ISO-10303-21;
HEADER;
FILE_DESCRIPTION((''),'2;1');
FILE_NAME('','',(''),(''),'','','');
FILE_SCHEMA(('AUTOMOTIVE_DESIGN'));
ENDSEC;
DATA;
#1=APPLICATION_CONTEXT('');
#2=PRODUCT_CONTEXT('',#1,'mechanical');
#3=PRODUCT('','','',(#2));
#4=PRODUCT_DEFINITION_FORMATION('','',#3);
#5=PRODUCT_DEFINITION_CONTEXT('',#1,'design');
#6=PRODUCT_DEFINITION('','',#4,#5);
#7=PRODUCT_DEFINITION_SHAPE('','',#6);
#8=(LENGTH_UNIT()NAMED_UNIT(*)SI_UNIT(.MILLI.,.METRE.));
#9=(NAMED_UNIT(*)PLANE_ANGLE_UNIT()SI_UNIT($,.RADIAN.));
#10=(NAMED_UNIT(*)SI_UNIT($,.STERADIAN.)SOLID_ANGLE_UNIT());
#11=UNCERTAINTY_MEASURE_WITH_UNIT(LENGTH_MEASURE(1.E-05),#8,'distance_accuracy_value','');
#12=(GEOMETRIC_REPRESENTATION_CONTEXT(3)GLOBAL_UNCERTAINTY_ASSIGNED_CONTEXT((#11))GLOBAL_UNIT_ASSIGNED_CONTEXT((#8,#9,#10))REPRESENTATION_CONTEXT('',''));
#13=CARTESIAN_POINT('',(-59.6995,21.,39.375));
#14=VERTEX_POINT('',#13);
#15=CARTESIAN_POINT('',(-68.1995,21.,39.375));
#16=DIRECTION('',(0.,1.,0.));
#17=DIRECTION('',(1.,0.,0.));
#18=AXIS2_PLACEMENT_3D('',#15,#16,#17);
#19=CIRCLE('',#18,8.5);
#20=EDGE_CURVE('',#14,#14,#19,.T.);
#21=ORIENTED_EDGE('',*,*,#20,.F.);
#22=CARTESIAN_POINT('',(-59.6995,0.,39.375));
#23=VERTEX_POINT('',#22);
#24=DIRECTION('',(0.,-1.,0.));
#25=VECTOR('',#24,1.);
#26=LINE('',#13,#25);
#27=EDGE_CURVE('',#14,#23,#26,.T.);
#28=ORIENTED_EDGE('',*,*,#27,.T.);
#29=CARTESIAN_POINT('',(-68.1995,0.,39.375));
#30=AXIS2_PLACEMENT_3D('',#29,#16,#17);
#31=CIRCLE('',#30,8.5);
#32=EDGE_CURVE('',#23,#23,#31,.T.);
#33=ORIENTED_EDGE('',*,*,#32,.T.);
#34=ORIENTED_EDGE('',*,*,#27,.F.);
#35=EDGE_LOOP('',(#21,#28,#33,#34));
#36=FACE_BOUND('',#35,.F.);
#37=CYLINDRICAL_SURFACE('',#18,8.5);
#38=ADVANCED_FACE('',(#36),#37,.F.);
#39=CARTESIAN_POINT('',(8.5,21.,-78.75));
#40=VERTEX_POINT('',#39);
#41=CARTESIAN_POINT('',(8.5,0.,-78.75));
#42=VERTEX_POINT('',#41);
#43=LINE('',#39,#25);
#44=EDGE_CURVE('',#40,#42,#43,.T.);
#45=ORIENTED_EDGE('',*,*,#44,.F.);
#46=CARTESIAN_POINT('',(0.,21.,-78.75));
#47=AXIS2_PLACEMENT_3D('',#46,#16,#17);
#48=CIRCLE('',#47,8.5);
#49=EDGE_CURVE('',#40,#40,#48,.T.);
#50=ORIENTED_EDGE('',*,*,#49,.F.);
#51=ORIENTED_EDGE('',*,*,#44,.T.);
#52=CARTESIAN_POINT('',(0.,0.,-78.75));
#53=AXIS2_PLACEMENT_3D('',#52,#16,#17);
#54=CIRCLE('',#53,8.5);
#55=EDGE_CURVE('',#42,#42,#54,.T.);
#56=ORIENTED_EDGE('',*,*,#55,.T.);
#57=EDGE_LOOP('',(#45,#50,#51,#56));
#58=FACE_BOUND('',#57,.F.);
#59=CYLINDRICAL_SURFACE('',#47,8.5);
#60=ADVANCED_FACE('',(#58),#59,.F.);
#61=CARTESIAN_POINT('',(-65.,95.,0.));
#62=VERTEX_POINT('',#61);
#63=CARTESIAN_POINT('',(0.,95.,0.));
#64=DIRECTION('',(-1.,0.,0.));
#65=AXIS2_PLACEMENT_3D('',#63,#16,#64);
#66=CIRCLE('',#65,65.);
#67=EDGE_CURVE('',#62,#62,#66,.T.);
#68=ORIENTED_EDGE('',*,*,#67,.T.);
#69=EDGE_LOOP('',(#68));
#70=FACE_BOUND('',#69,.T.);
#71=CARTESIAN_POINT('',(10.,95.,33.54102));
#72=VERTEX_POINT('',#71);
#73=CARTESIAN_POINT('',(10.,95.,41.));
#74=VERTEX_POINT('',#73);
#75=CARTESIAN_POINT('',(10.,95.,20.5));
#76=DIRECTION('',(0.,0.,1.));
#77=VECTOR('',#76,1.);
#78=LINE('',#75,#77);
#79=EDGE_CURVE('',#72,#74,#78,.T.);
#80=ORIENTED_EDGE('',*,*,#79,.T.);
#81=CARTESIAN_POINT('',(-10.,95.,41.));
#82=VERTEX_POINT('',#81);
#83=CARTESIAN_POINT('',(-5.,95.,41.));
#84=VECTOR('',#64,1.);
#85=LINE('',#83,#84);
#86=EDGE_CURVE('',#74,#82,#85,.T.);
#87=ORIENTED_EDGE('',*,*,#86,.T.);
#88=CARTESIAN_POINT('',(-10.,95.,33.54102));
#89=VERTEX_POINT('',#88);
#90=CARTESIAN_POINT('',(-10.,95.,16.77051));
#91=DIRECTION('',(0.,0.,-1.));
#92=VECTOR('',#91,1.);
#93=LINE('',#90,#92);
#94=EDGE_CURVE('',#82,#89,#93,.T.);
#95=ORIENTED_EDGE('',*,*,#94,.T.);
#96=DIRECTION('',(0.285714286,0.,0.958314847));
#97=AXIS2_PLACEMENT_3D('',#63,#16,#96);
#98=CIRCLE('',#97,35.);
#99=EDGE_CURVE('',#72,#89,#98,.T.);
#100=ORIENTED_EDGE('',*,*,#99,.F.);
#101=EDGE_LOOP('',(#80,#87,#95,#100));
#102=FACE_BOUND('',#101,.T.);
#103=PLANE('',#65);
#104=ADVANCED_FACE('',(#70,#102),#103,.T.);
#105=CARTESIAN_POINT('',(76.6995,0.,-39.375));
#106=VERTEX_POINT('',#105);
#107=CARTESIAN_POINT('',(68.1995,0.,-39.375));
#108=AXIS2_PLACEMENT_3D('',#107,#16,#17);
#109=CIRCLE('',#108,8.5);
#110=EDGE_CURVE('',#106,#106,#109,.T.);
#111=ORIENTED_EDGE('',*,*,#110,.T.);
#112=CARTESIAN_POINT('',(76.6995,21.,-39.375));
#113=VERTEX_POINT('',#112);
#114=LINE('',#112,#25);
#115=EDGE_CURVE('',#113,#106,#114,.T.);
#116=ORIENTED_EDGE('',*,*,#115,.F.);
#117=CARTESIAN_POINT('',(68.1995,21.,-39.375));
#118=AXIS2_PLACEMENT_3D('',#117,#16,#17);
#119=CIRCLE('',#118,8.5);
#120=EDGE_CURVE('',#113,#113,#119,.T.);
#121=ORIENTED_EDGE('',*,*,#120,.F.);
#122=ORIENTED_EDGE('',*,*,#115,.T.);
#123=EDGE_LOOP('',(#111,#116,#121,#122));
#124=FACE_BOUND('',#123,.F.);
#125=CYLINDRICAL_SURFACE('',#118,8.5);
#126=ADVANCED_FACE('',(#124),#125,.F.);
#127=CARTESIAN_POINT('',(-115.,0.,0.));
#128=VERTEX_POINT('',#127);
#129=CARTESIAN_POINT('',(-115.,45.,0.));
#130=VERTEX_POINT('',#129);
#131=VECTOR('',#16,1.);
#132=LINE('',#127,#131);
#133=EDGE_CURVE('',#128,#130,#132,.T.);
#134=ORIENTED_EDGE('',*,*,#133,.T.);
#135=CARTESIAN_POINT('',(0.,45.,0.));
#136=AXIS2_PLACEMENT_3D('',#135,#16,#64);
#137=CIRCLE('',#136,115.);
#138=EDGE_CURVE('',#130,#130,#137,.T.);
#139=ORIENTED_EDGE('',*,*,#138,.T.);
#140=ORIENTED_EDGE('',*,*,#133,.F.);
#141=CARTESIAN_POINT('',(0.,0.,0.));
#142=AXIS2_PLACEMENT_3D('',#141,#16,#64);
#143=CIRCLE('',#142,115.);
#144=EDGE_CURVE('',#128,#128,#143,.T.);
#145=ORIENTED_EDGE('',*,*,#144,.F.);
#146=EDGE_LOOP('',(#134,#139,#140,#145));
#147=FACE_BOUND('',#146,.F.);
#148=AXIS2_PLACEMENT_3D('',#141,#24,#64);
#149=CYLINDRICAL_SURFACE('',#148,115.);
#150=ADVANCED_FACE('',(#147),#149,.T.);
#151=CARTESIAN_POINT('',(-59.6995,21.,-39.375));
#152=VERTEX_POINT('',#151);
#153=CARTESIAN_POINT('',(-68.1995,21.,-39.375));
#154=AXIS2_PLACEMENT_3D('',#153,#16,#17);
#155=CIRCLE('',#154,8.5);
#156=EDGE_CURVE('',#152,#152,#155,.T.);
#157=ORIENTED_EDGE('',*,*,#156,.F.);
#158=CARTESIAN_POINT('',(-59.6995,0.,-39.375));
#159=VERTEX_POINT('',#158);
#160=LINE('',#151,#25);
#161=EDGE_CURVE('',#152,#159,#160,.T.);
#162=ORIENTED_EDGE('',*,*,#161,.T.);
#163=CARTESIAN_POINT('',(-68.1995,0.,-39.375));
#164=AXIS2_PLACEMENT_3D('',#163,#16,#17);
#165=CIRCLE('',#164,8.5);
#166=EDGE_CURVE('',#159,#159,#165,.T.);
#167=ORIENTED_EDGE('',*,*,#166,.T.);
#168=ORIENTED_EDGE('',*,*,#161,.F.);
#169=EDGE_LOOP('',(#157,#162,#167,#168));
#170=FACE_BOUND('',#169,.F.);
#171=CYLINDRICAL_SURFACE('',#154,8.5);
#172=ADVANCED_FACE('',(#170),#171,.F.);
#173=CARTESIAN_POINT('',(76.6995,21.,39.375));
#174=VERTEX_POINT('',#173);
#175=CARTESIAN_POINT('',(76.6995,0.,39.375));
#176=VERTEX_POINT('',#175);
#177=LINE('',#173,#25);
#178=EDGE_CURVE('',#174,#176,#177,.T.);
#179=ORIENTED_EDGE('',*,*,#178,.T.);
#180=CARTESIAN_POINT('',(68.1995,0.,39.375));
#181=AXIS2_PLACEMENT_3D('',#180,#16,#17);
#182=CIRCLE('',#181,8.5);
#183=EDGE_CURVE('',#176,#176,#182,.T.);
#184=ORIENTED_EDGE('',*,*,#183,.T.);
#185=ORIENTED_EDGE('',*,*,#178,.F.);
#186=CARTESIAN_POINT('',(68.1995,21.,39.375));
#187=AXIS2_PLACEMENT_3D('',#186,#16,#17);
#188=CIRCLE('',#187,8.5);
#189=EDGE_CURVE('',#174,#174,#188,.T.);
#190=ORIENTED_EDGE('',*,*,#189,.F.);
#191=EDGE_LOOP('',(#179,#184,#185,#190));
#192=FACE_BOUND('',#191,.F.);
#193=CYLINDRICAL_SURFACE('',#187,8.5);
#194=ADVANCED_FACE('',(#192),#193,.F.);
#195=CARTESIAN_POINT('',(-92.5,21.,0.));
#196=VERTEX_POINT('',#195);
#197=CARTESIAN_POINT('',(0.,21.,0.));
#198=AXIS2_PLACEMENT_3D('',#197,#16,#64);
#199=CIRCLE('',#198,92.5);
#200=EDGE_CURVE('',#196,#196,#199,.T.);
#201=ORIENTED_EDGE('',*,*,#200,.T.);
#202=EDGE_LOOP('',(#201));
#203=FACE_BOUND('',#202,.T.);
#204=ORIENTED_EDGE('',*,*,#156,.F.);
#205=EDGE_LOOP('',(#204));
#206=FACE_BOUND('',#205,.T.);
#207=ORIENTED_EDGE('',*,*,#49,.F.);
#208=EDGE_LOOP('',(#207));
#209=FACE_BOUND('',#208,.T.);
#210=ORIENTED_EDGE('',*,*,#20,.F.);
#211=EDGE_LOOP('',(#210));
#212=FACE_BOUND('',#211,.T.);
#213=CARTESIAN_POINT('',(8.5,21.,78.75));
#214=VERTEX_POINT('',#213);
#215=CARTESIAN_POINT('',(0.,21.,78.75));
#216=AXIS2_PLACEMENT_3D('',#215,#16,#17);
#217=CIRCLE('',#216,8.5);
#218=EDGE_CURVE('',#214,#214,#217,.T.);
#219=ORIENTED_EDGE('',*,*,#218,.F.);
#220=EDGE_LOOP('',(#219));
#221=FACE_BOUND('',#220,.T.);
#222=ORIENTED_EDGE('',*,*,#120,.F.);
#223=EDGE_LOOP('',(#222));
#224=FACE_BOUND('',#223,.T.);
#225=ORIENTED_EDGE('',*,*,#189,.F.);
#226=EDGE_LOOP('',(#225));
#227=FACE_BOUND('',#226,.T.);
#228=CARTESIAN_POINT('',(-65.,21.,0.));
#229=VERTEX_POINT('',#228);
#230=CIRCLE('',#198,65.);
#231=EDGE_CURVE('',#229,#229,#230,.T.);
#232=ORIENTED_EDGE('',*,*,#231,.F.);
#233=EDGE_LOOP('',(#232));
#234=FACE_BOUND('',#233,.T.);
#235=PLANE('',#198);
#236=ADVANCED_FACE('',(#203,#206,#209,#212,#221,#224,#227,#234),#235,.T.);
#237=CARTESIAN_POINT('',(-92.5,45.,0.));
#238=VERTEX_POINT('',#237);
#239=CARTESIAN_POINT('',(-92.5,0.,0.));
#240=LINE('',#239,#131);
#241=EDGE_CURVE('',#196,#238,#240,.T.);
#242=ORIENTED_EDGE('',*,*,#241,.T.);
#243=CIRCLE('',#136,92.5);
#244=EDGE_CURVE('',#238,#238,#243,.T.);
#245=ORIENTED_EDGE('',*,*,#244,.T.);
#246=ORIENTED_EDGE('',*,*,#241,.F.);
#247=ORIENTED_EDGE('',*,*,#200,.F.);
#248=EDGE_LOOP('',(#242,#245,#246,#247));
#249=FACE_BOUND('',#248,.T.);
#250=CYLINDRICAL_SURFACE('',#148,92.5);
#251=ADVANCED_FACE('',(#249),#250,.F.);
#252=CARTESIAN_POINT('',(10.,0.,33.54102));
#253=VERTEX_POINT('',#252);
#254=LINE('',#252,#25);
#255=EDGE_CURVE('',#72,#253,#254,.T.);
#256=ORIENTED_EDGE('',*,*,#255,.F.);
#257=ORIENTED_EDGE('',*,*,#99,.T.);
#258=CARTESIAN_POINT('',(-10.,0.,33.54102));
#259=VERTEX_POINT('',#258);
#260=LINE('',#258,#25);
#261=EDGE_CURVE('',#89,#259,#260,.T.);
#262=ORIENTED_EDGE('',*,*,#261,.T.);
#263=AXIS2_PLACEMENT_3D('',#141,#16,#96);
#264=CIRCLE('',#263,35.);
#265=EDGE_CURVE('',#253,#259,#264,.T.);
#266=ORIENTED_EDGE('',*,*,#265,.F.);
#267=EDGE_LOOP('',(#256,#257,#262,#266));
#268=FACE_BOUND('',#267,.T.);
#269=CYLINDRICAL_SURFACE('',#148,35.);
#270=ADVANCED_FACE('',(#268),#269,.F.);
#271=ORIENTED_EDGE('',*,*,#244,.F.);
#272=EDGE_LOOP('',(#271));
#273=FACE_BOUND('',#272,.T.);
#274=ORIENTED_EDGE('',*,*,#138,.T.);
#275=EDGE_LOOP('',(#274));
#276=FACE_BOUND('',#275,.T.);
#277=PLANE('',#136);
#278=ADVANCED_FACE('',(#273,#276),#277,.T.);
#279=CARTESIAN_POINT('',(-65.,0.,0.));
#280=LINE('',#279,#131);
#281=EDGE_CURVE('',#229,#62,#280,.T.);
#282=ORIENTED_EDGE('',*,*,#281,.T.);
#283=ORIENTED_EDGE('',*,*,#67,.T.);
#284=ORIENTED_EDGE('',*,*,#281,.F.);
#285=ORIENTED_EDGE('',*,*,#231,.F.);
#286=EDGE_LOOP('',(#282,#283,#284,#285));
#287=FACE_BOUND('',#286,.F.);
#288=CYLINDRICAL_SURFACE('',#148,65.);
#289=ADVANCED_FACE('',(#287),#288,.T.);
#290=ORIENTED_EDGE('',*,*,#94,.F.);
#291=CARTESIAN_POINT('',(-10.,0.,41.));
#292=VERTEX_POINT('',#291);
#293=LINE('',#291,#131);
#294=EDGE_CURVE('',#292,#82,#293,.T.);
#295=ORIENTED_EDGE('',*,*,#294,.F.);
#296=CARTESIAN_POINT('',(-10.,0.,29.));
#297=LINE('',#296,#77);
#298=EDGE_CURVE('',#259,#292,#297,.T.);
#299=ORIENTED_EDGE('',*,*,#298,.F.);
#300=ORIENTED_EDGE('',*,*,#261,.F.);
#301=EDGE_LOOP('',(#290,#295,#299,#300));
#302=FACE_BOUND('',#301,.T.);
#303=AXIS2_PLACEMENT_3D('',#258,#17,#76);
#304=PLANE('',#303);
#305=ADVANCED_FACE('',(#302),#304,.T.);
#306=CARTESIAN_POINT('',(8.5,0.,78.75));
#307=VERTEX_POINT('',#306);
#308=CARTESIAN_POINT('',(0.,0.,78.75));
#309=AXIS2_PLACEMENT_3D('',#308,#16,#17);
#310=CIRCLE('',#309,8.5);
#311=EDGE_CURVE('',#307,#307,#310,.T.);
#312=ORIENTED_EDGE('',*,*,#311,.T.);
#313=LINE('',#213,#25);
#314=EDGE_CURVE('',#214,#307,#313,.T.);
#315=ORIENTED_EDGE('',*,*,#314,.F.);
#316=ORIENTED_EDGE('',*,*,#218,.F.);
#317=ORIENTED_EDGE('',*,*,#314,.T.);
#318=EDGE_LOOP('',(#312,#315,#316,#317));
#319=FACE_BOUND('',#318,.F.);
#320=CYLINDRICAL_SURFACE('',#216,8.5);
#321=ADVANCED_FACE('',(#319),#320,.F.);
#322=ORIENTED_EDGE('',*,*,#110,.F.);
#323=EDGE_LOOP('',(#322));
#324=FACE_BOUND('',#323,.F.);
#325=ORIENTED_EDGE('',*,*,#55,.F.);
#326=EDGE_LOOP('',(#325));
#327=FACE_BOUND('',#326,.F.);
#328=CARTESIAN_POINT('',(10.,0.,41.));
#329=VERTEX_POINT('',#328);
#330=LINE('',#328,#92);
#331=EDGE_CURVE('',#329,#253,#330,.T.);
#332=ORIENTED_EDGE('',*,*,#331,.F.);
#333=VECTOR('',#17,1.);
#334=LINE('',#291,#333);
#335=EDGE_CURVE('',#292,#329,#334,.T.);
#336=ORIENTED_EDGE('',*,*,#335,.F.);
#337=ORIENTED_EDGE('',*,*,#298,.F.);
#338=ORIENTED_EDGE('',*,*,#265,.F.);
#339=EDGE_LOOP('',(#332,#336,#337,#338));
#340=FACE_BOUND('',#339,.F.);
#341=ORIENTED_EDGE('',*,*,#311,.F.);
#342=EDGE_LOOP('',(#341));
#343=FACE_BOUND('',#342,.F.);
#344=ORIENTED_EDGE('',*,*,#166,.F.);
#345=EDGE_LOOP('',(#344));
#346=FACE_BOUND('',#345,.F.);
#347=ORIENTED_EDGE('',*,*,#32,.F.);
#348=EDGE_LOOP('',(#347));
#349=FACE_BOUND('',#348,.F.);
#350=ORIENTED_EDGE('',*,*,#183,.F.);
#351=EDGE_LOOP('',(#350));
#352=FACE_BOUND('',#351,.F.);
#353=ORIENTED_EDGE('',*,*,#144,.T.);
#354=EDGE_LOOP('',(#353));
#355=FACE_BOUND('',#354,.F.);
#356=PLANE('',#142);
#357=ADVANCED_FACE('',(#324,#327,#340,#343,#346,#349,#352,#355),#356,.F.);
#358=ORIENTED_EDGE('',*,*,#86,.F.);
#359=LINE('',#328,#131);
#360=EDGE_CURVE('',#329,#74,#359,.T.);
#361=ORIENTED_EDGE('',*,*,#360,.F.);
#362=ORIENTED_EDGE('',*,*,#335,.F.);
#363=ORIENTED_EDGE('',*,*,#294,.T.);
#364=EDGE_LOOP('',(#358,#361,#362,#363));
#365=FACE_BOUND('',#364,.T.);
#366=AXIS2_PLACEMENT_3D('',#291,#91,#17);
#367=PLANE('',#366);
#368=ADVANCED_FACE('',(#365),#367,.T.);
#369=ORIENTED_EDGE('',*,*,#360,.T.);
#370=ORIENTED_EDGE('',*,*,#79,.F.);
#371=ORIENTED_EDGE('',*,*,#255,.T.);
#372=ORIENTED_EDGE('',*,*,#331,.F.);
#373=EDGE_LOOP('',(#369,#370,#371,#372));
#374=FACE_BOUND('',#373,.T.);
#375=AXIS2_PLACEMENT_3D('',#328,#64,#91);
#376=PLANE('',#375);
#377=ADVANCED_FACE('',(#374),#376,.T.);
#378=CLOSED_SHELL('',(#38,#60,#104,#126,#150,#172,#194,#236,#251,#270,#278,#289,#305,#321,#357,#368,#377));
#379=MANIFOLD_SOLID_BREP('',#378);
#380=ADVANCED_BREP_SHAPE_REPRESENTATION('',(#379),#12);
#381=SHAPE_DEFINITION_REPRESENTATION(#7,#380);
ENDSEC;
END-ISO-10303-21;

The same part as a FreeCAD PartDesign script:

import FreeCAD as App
import Part
import Sketcher

V = App.Vector
Q = App.Units.Quantity


def add_polygon(sketch, points):
    """Adds a closed chain of lines whose ends are joined by coincident constraints."""
    first, n = sketch.GeometryCount, len(points)
    for a, b in zip(points, points[1:] + points[:1]):
        sketch.addGeometry(Part.LineSegment(App.Vector(*a, 0), App.Vector(*b, 0)), False)
    for i in range(n):
        sketch.addConstraint(Sketcher.Constraint("Coincident", first + i, 2, first + (i + 1) % n, 1))

doc = App.newDocument("Part")
params = doc.addObject("Spreadsheet::Sheet", "Params")
for row, (alias, value) in enumerate([
    ("sketch1_diameter", "130 mm"),
    ("sketch1_diameter2", "70 mm"),
    ("pad1_length", "95 mm"),
    ("sketch2_diameter", "185 mm"),
    ("sketch2_diameter2", "130 mm"),
    ("pad2_length", "21 mm"),
    ("sketch3_diameter", "230 mm"),
    ("sketch3_diameter2", "185 mm"),
    ("pad3_length", "45 mm"),
    ("sketch4_diameter", "17 mm"),
    ("sketch5_width", "20 mm"),
    ("sketch5_height", "12 mm"),
], start=1):
    params.set(f"A{row}", alias)
    params.set(f"B{row}", "=" + value)
    params.setAlias(f"B{row}", alias)

body = doc.addObject("PartDesign::Body", "Body")

sketch1 = doc.addObject("Sketcher::SketchObject", "Sketch")
body.addObject(sketch1)
sketch1.AttachmentSupport = (doc.XZ_Plane, [""])
sketch1.MapMode = "FlatFace"
sketch1.addGeometry(Part.Circle(V(0, 0, 0), V(0, 0, 1), 65), False)
sketch1.addGeometry(Part.Circle(V(0, 0, 0), V(0, 0, 1), 35), False)
sketch1.addConstraint(Sketcher.Constraint("Coincident", 0, 3, -1, 1))
sketch1.addConstraint(Sketcher.Constraint("Coincident", 1, 3, -1, 1))
sketch1.addConstraint(Sketcher.Constraint("Diameter", 0, Q("130 mm")))
sketch1.addConstraint(Sketcher.Constraint("Diameter", 1, Q("70 mm")))
sketch1.setExpression("Constraints[2]", "Params.sketch1_diameter")
sketch1.setExpression("Constraints[3]", "Params.sketch1_diameter2")
pad1 = doc.addObject("PartDesign::Pad", "Pad")
body.addObject(pad1)
pad1.Profile = sketch1
pad1.setExpression("Length", "Params.pad1_length")
pad1.Reversed = True

sketch2 = doc.addObject("Sketcher::SketchObject", "Sketch001")
body.addObject(sketch2)
sketch2.AttachmentSupport = (doc.XZ_Plane, [""])
sketch2.MapMode = "FlatFace"
sketch2.addGeometry(Part.Circle(V(0, 0, 0), V(0, 0, 1), 92.5), False)
sketch2.addGeometry(Part.Circle(V(0, 0, 0), V(0, 0, 1), 65), False)
sketch2.addConstraint(Sketcher.Constraint("Coincident", 0, 3, -1, 1))
sketch2.addConstraint(Sketcher.Constraint("Coincident", 1, 3, -1, 1))
sketch2.addConstraint(Sketcher.Constraint("Diameter", 0, Q("185 mm")))
sketch2.addConstraint(Sketcher.Constraint("Diameter", 1, Q("130 mm")))
sketch2.setExpression("Constraints[2]", "Params.sketch2_diameter")
sketch2.setExpression("Constraints[3]", "Params.sketch2_diameter2")
pad2 = doc.addObject("PartDesign::Pad", "Pad001")
body.addObject(pad2)
pad2.Profile = sketch2
pad2.setExpression("Length", "Params.pad2_length")
pad2.Reversed = True

sketch3 = doc.addObject("Sketcher::SketchObject", "Sketch002")
body.addObject(sketch3)
sketch3.AttachmentSupport = (doc.XZ_Plane, [""])
sketch3.MapMode = "FlatFace"
sketch3.addGeometry(Part.Circle(V(0, 0, 0), V(0, 0, 1), 115), False)
sketch3.addGeometry(Part.Circle(V(0, 0, 0), V(0, 0, 1), 92.5), False)
sketch3.addConstraint(Sketcher.Constraint("Coincident", 0, 3, -1, 1))
sketch3.addConstraint(Sketcher.Constraint("Coincident", 1, 3, -1, 1))
sketch3.addConstraint(Sketcher.Constraint("Diameter", 0, Q("230 mm")))
sketch3.addConstraint(Sketcher.Constraint("Diameter", 1, Q("185 mm")))
sketch3.setExpression("Constraints[2]", "Params.sketch3_diameter")
sketch3.setExpression("Constraints[3]", "Params.sketch3_diameter2")
pad3 = doc.addObject("PartDesign::Pad", "Pad002")
body.addObject(pad3)
pad3.Profile = sketch3
pad3.setExpression("Length", "Params.pad3_length")
pad3.Reversed = True

sketch4 = doc.addObject("Sketcher::SketchObject", "Sketch003")
body.addObject(sketch4)
sketch4.AttachmentSupport = (doc.XZ_Plane, [""])
sketch4.MapMode = "FlatFace"
sketch4.AttachmentOffset = App.Placement(V(0, 0, -21), App.Rotation())
sketch4.addGeometry(Part.Circle(V(0, 78.75, 0), V(0, 0, 1), 8.5), False)
sketch4.addGeometry(Part.Circle(V(68.1995, 39.375, 0), V(0, 0, 1), 8.5), False)
sketch4.addGeometry(Part.Circle(V(68.1995, -39.375, 0), V(0, 0, 1), 8.5), False)
sketch4.addGeometry(Part.Circle(V(0, -78.75, 0), V(0, 0, 1), 8.5), False)
sketch4.addGeometry(Part.Circle(V(-68.1995, -39.375, 0), V(0, 0, 1), 8.5), False)
sketch4.addGeometry(Part.Circle(V(-68.1995, 39.375, 0), V(0, 0, 1), 8.5), False)
sketch4.addConstraint(Sketcher.Constraint("Equal", 0, 1))
sketch4.addConstraint(Sketcher.Constraint("Equal", 1, 2))
sketch4.addConstraint(Sketcher.Constraint("Equal", 2, 3))
sketch4.addConstraint(Sketcher.Constraint("Equal", 3, 4))
sketch4.addConstraint(Sketcher.Constraint("Equal", 4, 5))
sketch4.addConstraint(Sketcher.Constraint("Symmetric", 0, 3, 3, 3, -1, 1))
sketch4.addConstraint(Sketcher.Constraint("Symmetric", 1, 3, 4, 3, -1, 1))
sketch4.addConstraint(Sketcher.Constraint("Symmetric", 2, 3, 5, 3, -1, 1))
sketch4.addConstraint(Sketcher.Constraint("Symmetric", 2, 3, 4, 3, -2))
sketch4.addConstraint(Sketcher.Constraint("PointOnObject", 0, 3, -2))
sketch4.addConstraint(Sketcher.Constraint("Diameter", 0, Q("17 mm")))
sketch4.addConstraint(Sketcher.Constraint("DistanceY", 3, 3, 0, 3, Q("157.5 mm")))
sketch4.addConstraint(Sketcher.Constraint("DistanceY", 2, 3, 1, 3, Q("78.75 mm")))
sketch4.addConstraint(Sketcher.Constraint("DistanceX", 4, 3, 2, 3, Q("136.399 mm")))
sketch4.setExpression("Constraints[10]", "Params.sketch4_diameter")
pocket1 = doc.addObject("PartDesign::Pocket", "Pocket")
body.addObject(pocket1)
pocket1.Profile = sketch4
pocket1.Type = "ThroughAll"
pocket1.Reversed = True

sketch5 = doc.addObject("Sketcher::SketchObject", "Sketch004")
body.addObject(sketch5)
sketch5.AttachmentSupport = (doc.XZ_Plane, [""])
sketch5.MapMode = "FlatFace"
add_polygon(sketch5, [(10, 41), (-10, 41), (-10, 29), (10, 29)])
sketch5.addConstraint(Sketcher.Constraint("Horizontal", 0))
sketch5.addConstraint(Sketcher.Constraint("Vertical", 1))
sketch5.addConstraint(Sketcher.Constraint("Horizontal", 2))
sketch5.addConstraint(Sketcher.Constraint("Vertical", 3))
sketch5.addConstraint(Sketcher.Constraint("DistanceX", 0, 2, 0, 1, Q("20 mm")))
sketch5.addConstraint(Sketcher.Constraint("DistanceY", 1, 2, 1, 1, Q("12 mm")))
sketch5.addConstraint(Sketcher.Constraint("DistanceY", -1, 1, 1, 2, Q("29 mm")))
sketch5.addConstraint(Sketcher.Constraint("DistanceX", 0, 2, -1, 1, Q("10 mm")))
sketch5.setExpression("Constraints[8]", "Params.sketch5_width")
sketch5.setExpression("Constraints[9]", "Params.sketch5_height")
pocket2 = doc.addObject("PartDesign::Pocket", "Pocket001")
body.addObject(pocket2)
pocket2.Profile = sketch5
pocket2.Type = "ThroughAll"

doc.recompute()
